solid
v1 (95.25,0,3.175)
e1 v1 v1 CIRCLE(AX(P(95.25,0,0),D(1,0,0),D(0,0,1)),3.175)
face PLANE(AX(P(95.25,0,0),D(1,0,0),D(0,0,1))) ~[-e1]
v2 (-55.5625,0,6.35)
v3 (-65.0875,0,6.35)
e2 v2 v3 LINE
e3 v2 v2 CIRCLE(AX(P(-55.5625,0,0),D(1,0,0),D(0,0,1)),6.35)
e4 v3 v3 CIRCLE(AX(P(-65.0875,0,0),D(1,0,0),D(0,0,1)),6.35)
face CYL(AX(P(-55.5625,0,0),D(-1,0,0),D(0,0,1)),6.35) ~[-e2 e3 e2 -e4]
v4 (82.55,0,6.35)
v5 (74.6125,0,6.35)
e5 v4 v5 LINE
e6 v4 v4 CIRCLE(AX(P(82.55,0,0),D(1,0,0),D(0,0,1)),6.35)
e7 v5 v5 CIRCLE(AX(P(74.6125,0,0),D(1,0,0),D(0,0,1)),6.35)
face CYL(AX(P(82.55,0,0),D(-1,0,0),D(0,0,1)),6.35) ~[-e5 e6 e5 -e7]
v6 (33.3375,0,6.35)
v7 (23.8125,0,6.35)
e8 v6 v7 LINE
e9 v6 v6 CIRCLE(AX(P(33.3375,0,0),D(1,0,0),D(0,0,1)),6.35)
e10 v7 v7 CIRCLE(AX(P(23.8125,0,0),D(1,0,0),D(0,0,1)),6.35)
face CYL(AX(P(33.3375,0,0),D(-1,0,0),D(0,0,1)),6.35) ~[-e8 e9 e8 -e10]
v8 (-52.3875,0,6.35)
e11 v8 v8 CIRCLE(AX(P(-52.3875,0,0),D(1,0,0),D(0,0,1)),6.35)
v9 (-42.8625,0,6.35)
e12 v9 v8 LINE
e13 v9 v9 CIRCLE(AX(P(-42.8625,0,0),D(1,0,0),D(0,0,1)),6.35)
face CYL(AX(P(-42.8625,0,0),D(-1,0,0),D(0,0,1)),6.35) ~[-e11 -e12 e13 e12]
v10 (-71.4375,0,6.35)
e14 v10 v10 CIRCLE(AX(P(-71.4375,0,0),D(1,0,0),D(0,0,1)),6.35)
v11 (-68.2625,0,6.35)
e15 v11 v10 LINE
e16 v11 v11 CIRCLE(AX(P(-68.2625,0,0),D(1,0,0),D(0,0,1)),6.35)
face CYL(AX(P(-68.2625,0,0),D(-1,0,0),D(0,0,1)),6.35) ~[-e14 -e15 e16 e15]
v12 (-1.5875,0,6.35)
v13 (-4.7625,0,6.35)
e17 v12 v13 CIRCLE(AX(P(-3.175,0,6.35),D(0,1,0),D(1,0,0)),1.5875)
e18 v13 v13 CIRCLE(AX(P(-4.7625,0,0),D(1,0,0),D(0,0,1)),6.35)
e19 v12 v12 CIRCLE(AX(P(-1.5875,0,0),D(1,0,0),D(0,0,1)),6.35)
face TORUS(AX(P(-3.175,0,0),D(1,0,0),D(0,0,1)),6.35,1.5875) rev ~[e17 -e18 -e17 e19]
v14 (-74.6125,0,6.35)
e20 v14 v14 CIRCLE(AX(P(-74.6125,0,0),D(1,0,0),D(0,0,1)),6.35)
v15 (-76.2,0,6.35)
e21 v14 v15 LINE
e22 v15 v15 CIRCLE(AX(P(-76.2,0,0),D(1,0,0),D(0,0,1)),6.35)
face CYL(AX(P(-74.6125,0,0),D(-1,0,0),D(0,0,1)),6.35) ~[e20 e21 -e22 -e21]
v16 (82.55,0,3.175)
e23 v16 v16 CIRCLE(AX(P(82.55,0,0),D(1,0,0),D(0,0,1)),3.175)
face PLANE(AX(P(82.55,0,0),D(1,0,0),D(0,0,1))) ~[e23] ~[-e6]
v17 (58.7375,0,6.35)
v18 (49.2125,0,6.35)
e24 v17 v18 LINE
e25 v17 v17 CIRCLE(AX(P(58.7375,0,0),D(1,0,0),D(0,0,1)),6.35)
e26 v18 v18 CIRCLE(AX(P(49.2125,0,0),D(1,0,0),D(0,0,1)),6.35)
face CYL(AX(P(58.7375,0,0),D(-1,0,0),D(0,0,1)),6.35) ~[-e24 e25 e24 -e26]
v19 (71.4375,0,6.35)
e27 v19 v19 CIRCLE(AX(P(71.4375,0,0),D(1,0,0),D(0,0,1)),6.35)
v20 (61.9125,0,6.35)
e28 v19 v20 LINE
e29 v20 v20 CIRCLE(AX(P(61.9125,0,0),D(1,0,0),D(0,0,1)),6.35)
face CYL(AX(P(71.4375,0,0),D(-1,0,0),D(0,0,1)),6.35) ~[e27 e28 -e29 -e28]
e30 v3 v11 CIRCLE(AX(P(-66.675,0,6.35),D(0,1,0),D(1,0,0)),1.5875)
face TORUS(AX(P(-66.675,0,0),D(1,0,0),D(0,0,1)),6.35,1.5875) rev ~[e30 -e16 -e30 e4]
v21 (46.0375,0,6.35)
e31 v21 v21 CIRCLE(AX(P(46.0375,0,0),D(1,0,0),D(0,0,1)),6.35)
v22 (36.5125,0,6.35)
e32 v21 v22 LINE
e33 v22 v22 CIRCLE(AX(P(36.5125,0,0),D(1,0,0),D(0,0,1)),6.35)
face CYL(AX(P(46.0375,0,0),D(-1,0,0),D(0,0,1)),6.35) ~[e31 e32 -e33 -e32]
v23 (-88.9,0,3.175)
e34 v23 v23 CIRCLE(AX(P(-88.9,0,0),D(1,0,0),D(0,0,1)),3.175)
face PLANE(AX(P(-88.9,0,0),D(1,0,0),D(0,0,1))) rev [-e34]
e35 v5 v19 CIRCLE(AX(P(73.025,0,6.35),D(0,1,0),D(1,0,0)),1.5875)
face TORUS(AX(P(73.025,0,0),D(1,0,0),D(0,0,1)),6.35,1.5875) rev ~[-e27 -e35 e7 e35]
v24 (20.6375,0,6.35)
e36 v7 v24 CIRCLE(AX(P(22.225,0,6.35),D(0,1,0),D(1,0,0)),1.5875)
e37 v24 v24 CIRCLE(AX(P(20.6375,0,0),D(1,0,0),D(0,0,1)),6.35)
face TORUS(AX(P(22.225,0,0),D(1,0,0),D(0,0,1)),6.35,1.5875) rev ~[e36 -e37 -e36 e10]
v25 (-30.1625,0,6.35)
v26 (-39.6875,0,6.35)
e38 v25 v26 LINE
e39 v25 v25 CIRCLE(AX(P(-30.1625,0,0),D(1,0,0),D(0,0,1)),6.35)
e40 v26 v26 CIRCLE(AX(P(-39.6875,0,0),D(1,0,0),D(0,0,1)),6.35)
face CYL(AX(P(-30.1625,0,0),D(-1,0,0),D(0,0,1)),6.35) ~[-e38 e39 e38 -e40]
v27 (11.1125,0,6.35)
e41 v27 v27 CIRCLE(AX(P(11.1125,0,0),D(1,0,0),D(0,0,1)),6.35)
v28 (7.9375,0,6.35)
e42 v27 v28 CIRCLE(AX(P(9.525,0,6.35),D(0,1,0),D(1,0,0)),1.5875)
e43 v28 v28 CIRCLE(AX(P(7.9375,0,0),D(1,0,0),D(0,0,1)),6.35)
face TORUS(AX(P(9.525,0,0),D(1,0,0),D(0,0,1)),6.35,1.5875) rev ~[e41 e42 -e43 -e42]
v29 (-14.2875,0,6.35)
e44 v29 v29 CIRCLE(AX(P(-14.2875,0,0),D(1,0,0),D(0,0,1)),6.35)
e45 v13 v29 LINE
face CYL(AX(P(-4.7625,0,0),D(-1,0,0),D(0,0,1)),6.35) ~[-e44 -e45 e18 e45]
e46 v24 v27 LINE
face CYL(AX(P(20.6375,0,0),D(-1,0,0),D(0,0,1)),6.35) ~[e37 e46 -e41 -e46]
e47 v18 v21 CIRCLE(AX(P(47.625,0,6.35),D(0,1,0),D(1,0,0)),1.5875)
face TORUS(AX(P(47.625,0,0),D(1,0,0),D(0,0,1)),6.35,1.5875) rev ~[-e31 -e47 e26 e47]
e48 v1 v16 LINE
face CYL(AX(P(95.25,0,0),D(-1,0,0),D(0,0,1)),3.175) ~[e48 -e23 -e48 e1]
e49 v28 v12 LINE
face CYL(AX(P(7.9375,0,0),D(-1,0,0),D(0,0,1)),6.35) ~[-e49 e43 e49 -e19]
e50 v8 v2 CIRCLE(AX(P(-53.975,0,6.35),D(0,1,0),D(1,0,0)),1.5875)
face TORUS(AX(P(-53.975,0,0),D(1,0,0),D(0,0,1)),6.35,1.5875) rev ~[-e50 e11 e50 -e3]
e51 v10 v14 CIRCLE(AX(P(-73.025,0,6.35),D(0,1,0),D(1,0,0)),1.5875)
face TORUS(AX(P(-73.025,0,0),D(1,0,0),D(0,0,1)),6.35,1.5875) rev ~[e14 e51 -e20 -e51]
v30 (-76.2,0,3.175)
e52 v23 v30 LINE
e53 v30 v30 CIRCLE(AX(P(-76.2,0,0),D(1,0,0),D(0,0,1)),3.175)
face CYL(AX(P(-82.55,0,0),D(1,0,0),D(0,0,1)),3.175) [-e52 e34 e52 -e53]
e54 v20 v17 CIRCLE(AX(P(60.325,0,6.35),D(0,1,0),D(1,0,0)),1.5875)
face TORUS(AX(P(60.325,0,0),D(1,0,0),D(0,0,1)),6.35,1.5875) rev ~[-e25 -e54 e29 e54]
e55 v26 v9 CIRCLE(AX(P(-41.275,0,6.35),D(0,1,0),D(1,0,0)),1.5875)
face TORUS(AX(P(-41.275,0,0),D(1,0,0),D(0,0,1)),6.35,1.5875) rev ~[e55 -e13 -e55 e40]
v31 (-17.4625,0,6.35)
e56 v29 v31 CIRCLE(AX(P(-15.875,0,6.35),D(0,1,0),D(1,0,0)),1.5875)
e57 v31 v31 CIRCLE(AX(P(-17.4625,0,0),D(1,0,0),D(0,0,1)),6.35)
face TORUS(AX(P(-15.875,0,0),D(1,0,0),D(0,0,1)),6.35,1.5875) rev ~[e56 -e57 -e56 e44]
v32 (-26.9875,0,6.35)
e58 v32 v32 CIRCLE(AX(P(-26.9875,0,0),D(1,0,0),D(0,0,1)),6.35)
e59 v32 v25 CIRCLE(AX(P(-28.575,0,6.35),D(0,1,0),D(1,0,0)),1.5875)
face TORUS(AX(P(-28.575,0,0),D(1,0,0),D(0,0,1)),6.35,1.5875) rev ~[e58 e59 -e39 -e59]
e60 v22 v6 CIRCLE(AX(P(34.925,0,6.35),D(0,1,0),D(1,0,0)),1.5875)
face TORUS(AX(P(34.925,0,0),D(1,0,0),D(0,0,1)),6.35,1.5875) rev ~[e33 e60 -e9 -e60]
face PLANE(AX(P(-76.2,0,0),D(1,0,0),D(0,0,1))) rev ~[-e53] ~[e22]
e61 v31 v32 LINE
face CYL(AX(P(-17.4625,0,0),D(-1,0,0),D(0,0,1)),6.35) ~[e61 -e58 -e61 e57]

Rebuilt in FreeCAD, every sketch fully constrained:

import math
import FreeCAD as App
import Part
import Sketcher
from FreeCAD import Vector
Q = App.Units.Quantity

doc = App.newDocument("Part")
body = doc.addObject("PartDesign::Body", "Body")

# Sketch on XZ plane
sketch1 = body.newObject("Sketcher::SketchObject", "Sketch")
sketch1.AttachmentSupport = (doc.getObject("XZ_Plane"), [""])
sketch1.MapMode = "FlatFace"
sketch1.addGeometry([
    Part.LineSegment(Vector(95.25, 0, 0), Vector(95.25, 3.175, 0)),  # 0
    Part.LineSegment(Vector(95.25, 3.175, 0), Vector(82.55, 3.175, 0)),  # 1
    Part.LineSegment(Vector(82.55, 3.175, 0), Vector(82.55, 6.35, 0)),  # 2
    Part.LineSegment(Vector(82.55, 6.35, 0), Vector(74.6125, 6.35, 0)),  # 3
    Part.ArcOfCircle(Part.Circle(Vector(73.025, 6.35, 0), Vector(0, 0, 1), 1.5875), math.radians(180), math.radians(360)),  # 4
    Part.LineSegment(Vector(71.4375, 6.35, 0), Vector(61.9125, 6.35, 0)),  # 5
    Part.ArcOfCircle(Part.Circle(Vector(60.325, 6.35, 0), Vector(0, 0, 1), 1.5875), math.radians(180), math.radians(360)),  # 6
    Part.LineSegment(Vector(58.7375, 6.35, 0), Vector(49.2125, 6.35, 0)),  # 7
    Part.ArcOfCircle(Part.Circle(Vector(47.625, 6.35, 0), Vector(0, 0, 1), 1.5875), math.radians(180), math.radians(360)),  # 8
    Part.LineSegment(Vector(46.0375, 6.35, 0), Vector(36.5125, 6.35, 0)),  # 9
    Part.ArcOfCircle(Part.Circle(Vector(34.925, 6.35, 0), Vector(0, 0, 1), 1.5875), math.radians(180), math.radians(360)),  # 10
    Part.LineSegment(Vector(33.3375, 6.35, 0), Vector(23.8125, 6.35, 0)),  # 11
    Part.ArcOfCircle(Part.Circle(Vector(22.225, 6.35, 0), Vector(0, 0, 1), 1.5875), math.radians(180), math.radians(360)),  # 12
    Part.LineSegment(Vector(20.6375, 6.35, 0), Vector(11.1125, 6.35, 0)),  # 13
    Part.ArcOfCircle(Part.Circle(Vector(9.525, 6.35, 0), Vector(0, 0, 1), 1.5875), math.radians(180), math.radians(360)),  # 14
    Part.LineSegment(Vector(7.9375, 6.35, 0), Vector(-1.5875, 6.35, 0)),  # 15
    Part.ArcOfCircle(Part.Circle(Vector(-3.175, 6.35, 0), Vector(0, 0, 1), 1.5875), math.radians(180), math.radians(360)),  # 16
    Part.LineSegment(Vector(-4.7625, 6.35, 0), Vector(-14.2875, 6.35, 0)),  # 17
    Part.ArcOfCircle(Part.Circle(Vector(-15.875, 6.35, 0), Vector(0, 0, 1), 1.5875), math.radians(180), math.radians(360)),  # 18
    Part.LineSegment(Vector(-17.4625, 6.35, 0), Vector(-26.9875, 6.35, 0)),  # 19
    Part.ArcOfCircle(Part.Circle(Vector(-28.575, 6.35, 0), Vector(0, 0, 1), 1.5875), math.radians(180), math.radians(360)),  # 20
    Part.LineSegment(Vector(-30.1625, 6.35, 0), Vector(-39.6875, 6.35, 0)),  # 21
    Part.ArcOfCircle(Part.Circle(Vector(-41.275, 6.35, 0), Vector(0, 0, 1), 1.5875), math.radians(180), math.radians(360)),  # 22
    Part.LineSegment(Vector(-42.8625, 6.35, 0), Vector(-52.3875, 6.35, 0)),  # 23
    Part.ArcOfCircle(Part.Circle(Vector(-53.975, 6.35, 0), Vector(0, 0, 1), 1.5875), math.radians(180), math.radians(360)),  # 24
    Part.LineSegment(Vector(-55.5625, 6.35, 0), Vector(-65.0875, 6.35, 0)),  # 25
    Part.ArcOfCircle(Part.Circle(Vector(-66.675, 6.35, 0), Vector(0, 0, 1), 1.5875), math.radians(180), math.radians(360)),  # 26
    Part.LineSegment(Vector(-68.2625, 6.35, 0), Vector(-71.4375, 6.35, 0)),  # 27
    Part.ArcOfCircle(Part.Circle(Vector(-73.025, 6.35, 0), Vector(0, 0, 1), 1.5875), math.radians(180), math.radians(360)),  # 28
    Part.LineSegment(Vector(-74.6125, 6.35, 0), Vector(-76.2, 6.35, 0)),  # 29
    Part.LineSegment(Vector(-76.2, 6.35, 0), Vector(-76.2, 3.175, 0)),  # 30
    Part.LineSegment(Vector(-76.2, 3.175, 0), Vector(-88.9, 3.175, 0)),  # 31
    Part.LineSegment(Vector(-88.9, 3.175, 0), Vector(-88.9, 0, 0)),  # 32
    Part.LineSegment(Vector(-88.9, 0, 0), Vector(95.25, 0, 0)),  # 33
], False)
sketch1.addConstraint([
    Sketcher.Constraint("Coincident", 0, 2, 1, 1),
    Sketcher.Constraint("Coincident", 1, 2, 2, 1),
    Sketcher.Constraint("Coincident", 2, 2, 3, 1),
    Sketcher.Constraint("Coincident", 3, 2, 4, 2),
    Sketcher.Constraint("Coincident", 4, 1, 5, 1),
    Sketcher.Constraint("Coincident", 5, 2, 6, 2),
    Sketcher.Constraint("Coincident", 6, 1, 7, 1),
    Sketcher.Constraint("Coincident", 7, 2, 8, 2),
    Sketcher.Constraint("Coincident", 8, 1, 9, 1),
    Sketcher.Constraint("Coincident", 9, 2, 10, 2),
    Sketcher.Constraint("Coincident", 10, 1, 11, 1),
    Sketcher.Constraint("Coincident", 11, 2, 12, 2),
    Sketcher.Constraint("Coincident", 12, 1, 13, 1),
    Sketcher.Constraint("Coincident", 13, 2, 14, 2),
    Sketcher.Constraint("Coincident", 14, 1, 15, 1),
    Sketcher.Constraint("Coincident", 15, 2, 16, 2),
    Sketcher.Constraint("Coincident", 16, 1, 17, 1),
    Sketcher.Constraint("Coincident", 17, 2, 18, 2),
    Sketcher.Constraint("Coincident", 18, 1, 19, 1),
    Sketcher.Constraint("Coincident", 19, 2, 20, 2),
    Sketcher.Constraint("Coincident", 20, 1, 21, 1),
    Sketcher.Constraint("Coincident", 21, 2, 22, 2),
    Sketcher.Constraint("Coincident", 22, 1, 23, 1),
    Sketcher.Constraint("Coincident", 23, 2, 24, 2),
    Sketcher.Constraint("Coincident", 24, 1, 25, 1),
    Sketcher.Constraint("Coincident", 25, 2, 26, 2),
    Sketcher.Constraint("Coincident", 26, 1, 27, 1),
    Sketcher.Constraint("Coincident", 27, 2, 28, 2),
    Sketcher.Constraint("Coincident", 28, 1, 29, 1),
    Sketcher.Constraint("Coincident", 29, 2, 30, 1),
    Sketcher.Constraint("Coincident", 30, 2, 31, 1),
    Sketcher.Constraint("Coincident", 31, 2, 32, 1),
    Sketcher.Constraint("Coincident", 32, 2, 33, 1),
    Sketcher.Constraint("Coincident", 33, 2, 0, 1),
    Sketcher.Constraint("Vertical", 0),
    Sketcher.Constraint("Horizontal", 1),
    Sketcher.Constraint("Vertical", 2),
    Sketcher.Constraint("Horizontal", 3),
    Sketcher.Constraint("Horizontal", 5),
    Sketcher.Constraint("Horizontal", 7),
    Sketcher.Constraint("Horizontal", 9),
    Sketcher.Constraint("Horizontal", 11),
    Sketcher.Constraint("Horizontal", 13),
    Sketcher.Constraint("Horizontal", 15),
    Sketcher.Constraint("Horizontal", 17),
    Sketcher.Constraint("Horizontal", 19),
    Sketcher.Constraint("Horizontal", 21),
    Sketcher.Constraint("Horizontal", 23),
    Sketcher.Constraint("Horizontal", 25),
    Sketcher.Constraint("Horizontal", 27),
    Sketcher.Constraint("Horizontal", 29),
    Sketcher.Constraint("Vertical", 30),
    Sketcher.Constraint("Horizontal", 31),
    Sketcher.Constraint("Vertical", 32),
    Sketcher.Constraint("Horizontal", 33),
    Sketcher.Constraint("Equal", 4, 6),
    Sketcher.Constraint("Equal", 6, 8),
    Sketcher.Constraint("Equal", 8, 10),
    Sketcher.Constraint("Equal", 10, 12),
    Sketcher.Constraint("Equal", 12, 14),
    Sketcher.Constraint("Equal", 14, 16),
    Sketcher.Constraint("Equal", 16, 18),
    Sketcher.Constraint("Equal", 18, 20),
    Sketcher.Constraint("Equal", 20, 22),
    Sketcher.Constraint("Equal", 22, 24),
    Sketcher.Constraint("Equal", 24, 26),
    Sketcher.Constraint("Equal", 26, 28),
    Sketcher.Constraint("Symmetric", 4, 3, 28, 3, -2),
    Sketcher.Constraint("PointOnObject", 32, 2, -1),
    Sketcher.Constraint("Horizontal", 4, 3, 6, 3),
    Sketcher.Constraint("Horizontal", 6, 3, 8, 3),
    Sketcher.Constraint("Horizontal", 8, 3, 10, 3),
    Sketcher.Constraint("Horizontal", 10, 3, 12, 3),
    Sketcher.Constraint("Horizontal", 12, 3, 14, 3),
    Sketcher.Constraint("Horizontal", 14, 3, 16, 3),
    Sketcher.Constraint("Horizontal", 16, 3, 18, 3),
    Sketcher.Constraint("Horizontal", 18, 3, 20, 3),
    Sketcher.Constraint("Horizontal", 20, 3, 22, 3),
    Sketcher.Constraint("Horizontal", 22, 3, 24, 3),
    Sketcher.Constraint("Horizontal", 24, 3, 26, 3),
    Sketcher.Constraint("Horizontal", 28, 3, 2, 2),
    Sketcher.Constraint("Horizontal", 3, 2, 4, 1),
    Sketcher.Constraint("Horizontal", 5, 2, 6, 1),
    Sketcher.Constraint("Horizontal", 7, 2, 8, 1),
    Sketcher.Constraint("Horizontal", 9, 2, 10, 1),
    Sketcher.Constraint("Horizontal", 11, 2, 12, 1),
    Sketcher.Constraint("Horizontal", 13, 2, 14, 1),
    Sketcher.Constraint("Horizontal", 15, 2, 16, 1),
    Sketcher.Constraint("Horizontal", 17, 2, 18, 1),
    Sketcher.Constraint("Horizontal", 19, 2, 20, 1),
    Sketcher.Constraint("Horizontal", 21, 2, 22, 1),
    Sketcher.Constraint("Horizontal", 23, 2, 24, 1),
    Sketcher.Constraint("Horizontal", 25, 2, 26, 1),
    Sketcher.Constraint("Horizontal", 27, 2, 28, 1),
    Sketcher.Constraint("Horizontal", 1, 2, 30, 2),
    Sketcher.Constraint("Equal", 5, 7),
    Sketcher.Constraint("Equal", 7, 9),
    Sketcher.Constraint("Equal", 9, 11),
    Sketcher.Constraint("Equal", 11, 13),
    Sketcher.Constraint("Equal", 13, 15),
    Sketcher.Constraint("Equal", 15, 17),
    Sketcher.Constraint("Equal", 17, 19),
    Sketcher.Constraint("Equal", 19, 21),
    Sketcher.Constraint("Equal", 21, 23),
    Sketcher.Constraint("Equal", 23, 25),
    Sketcher.Constraint("Equal", 1, 31),
    Sketcher.Constraint("Equal", 27, 0),
    Sketcher.Constraint("Equal", 0, 2),
    Sketcher.Constraint("DistanceX", 1, 2, 1, 1, Q("0.5 in")),
    Sketcher.Constraint("DistanceX", 29, 2, -1, 1, Q("3 in")),
    Sketcher.Constraint("Radius", 4, Q("0.0625 in")),
    Sketcher.Constraint("DistanceX", 8, 3, 4, 3, Q("1 in")),
    Sketcher.Constraint("DistanceX", 33, 1, 33, 2, Q("7.25 in")),
    Sketcher.Constraint("DistanceX", 3, 2, 3, 1, Q("0.3125 in")),
])
revolution = body.newObject("PartDesign::Revolution", "Revolution")
revolution.Profile = sketch1
revolution.ReferenceAxis = (sketch1, ["H_Axis"])
revolution.Angle = 360

doc.recompute()
